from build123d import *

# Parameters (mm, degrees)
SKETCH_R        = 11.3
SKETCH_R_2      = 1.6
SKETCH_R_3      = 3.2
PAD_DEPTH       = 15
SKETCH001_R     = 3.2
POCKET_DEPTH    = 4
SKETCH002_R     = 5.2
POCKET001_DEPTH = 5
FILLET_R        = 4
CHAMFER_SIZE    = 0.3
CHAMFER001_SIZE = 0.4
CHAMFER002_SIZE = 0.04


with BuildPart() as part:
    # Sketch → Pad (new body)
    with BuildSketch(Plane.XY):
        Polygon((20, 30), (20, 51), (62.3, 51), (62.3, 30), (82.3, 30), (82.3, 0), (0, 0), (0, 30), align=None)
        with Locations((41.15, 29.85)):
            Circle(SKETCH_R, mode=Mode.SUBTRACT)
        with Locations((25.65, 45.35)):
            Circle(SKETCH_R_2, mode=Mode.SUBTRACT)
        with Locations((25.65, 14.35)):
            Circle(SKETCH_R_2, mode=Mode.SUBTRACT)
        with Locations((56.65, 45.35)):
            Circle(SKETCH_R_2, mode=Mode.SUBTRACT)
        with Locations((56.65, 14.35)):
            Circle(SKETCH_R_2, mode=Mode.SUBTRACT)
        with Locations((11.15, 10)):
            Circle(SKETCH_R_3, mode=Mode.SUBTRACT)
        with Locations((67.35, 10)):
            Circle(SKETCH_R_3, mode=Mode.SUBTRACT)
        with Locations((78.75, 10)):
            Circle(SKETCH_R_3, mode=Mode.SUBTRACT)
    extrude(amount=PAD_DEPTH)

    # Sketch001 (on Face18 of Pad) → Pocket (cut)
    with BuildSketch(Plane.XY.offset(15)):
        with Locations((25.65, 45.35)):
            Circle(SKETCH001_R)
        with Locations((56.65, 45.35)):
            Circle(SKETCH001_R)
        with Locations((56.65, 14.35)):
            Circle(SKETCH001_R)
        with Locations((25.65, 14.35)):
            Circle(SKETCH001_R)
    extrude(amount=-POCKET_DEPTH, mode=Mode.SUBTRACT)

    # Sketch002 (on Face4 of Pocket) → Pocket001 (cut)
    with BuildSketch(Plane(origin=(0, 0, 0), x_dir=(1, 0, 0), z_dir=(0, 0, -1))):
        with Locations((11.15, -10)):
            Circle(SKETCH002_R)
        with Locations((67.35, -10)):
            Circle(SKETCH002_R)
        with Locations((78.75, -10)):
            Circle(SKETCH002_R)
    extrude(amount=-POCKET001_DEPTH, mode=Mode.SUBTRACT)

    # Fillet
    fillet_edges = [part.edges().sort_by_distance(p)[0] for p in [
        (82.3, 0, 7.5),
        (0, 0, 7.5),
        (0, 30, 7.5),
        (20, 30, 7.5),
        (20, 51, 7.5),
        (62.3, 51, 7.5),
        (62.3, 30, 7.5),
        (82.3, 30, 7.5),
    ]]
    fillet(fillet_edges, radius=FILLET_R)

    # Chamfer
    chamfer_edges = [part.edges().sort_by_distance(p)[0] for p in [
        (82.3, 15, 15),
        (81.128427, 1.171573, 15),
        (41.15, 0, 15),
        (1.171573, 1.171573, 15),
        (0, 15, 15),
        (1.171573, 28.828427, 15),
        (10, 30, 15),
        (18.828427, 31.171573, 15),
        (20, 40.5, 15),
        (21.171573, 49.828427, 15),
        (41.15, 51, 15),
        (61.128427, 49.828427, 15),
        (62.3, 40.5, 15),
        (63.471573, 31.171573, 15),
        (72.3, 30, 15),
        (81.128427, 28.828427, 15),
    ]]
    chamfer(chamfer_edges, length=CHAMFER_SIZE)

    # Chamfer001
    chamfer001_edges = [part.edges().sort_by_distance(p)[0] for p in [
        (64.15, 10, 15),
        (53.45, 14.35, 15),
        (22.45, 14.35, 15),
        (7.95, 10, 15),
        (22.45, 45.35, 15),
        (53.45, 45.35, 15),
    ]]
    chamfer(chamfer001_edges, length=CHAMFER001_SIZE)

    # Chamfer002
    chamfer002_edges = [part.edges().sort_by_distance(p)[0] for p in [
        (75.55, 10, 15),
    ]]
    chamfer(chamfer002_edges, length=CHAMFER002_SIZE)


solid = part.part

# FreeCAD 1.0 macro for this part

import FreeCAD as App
import Part
import Sketcher

V = App.Vector
Q = App.Units.Quantity


def edges_at(feature, points):
    """Names of the edges that pass closest to the given points."""
    edges = feature.Shape.Edges
    near = lambda p: min(range(len(edges)), key=lambda i: edges[i].distToShape(Part.Vertex(*p))[0])
    return sorted({f"Edge{near(p) + 1}" for p in points})

doc = App.newDocument("Part")
body = doc.addObject("PartDesign::Body", "Body")

# Sketch on XY plane
sketch1 = body.newObject("Sketcher::SketchObject", "Sketch")
sketch1.AttachmentSupport = (doc.getObject("XY_Plane"), [""])
sketch1.MapMode = "FlatFace"
sketch1.addGeometry([
    Part.LineSegment(V(20, 51, 0), V(20, 30, 0)),  # 0
    Part.LineSegment(V(20, 30, 0), V(0, 30, 0)),  # 1
    Part.LineSegment(V(0, 30, 0), V(0, 0, 0)),  # 2
    Part.LineSegment(V(0, 0, 0), V(82.3, 0, 0)),  # 3
    Part.LineSegment(V(82.3, 0, 0), V(82.3, 30, 0)),  # 4
    Part.LineSegment(V(82.3, 30, 0), V(62.3, 30, 0)),  # 5
    Part.LineSegment(V(62.3, 30, 0), V(62.3, 51, 0)),  # 6
    Part.LineSegment(V(62.3, 51, 0), V(20, 51, 0)),  # 7
    Part.Circle(V(78.8, 10, 0), V(0, 0, 1), 3.2),  # 8
    Part.Circle(V(67.3, 10, 0), V(0, 0, 1), 3.2),  # 9
    Part.Circle(V(56.6, 14.3, 0), V(0, 0, 1), 1.6),  # 10
    Part.Circle(V(11.2, 10, 0), V(0, 0, 1), 3.2),  # 11
    Part.Circle(V(25.6, 14.3, 0), V(0, 0, 1), 1.6),  # 12
    Part.Circle(V(56.6, 45.4, 0), V(0, 0, 1), 1.6),  # 13
    Part.Circle(V(41.1, 29.9, 0), V(0, 0, 1), 11.3),  # 14
    Part.Circle(V(25.6, 45.4, 0), V(0, 0, 1), 1.6),  # 15
], False)
sketch1.addConstraint([
    Sketcher.Constraint("Coincident", 0, 2, 1, 1),
    Sketcher.Constraint("Coincident", 1, 2, 2, 1),
    Sketcher.Constraint("Coincident", 2, 2, 3, 1),
    Sketcher.Constraint("Coincident", 3, 2, 4, 1),
    Sketcher.Constraint("Coincident", 4, 2, 5, 1),
    Sketcher.Constraint("Coincident", 5, 2, 6, 1),
    Sketcher.Constraint("Coincident", 6, 2, 7, 1),
    Sketcher.Constraint("Coincident", 7, 2, 0, 1),
    Sketcher.Constraint("Vertical", 0),
    Sketcher.Constraint("Horizontal", 1),
    Sketcher.Constraint("Vertical", 2),
    Sketcher.Constraint("Horizontal", 3),
    Sketcher.Constraint("Vertical", 4),
    Sketcher.Constraint("Horizontal", 5),
    Sketcher.Constraint("Vertical", 6),
    Sketcher.Constraint("Horizontal", 7),
    Sketcher.Constraint("Coincident", 2, 2, -1, 1),
    Sketcher.Constraint("Equal", 8, 9),
    Sketcher.Constraint("Equal", 9, 11),
    Sketcher.Constraint("Equal", 10, 12),
    Sketcher.Constraint("Equal", 12, 13),
    Sketcher.Constraint("Equal", 13, 15),
    Sketcher.Constraint("Horizontal", 8, 3, 9, 3),
    Sketcher.Constraint("Horizontal", 9, 3, 11, 3),
    Sketcher.Constraint("Horizontal", 10, 3, 12, 3),
    Sketcher.Constraint("Horizontal", 13, 3, 15, 3),
    Sketcher.Constraint("Horizontal", 1, 2, 4, 2),
    Sketcher.Constraint("Vertical", 10, 3, 13, 3),
    Sketcher.Constraint("Vertical", 12, 3, 15, 3),
    Sketcher.Constraint("Equal", 1, 5),
    Sketcher.Constraint("Diameter", 8, Q("6.4 mm")),
    Sketcher.Constraint("Diameter", 10, Q("3.2 mm")),
    Sketcher.Constraint("Diameter", 14, Q("22.6 mm")),
    Sketcher.Constraint("DistanceX", 1, 2, 1, 1, Q("20 mm")),
    Sketcher.Constraint("DistanceY", 0, 2, 0, 1, Q("21 mm")),
    Sketcher.Constraint("DistanceY", 2, 2, 2, 1, Q("30 mm")),
    Sketcher.Constraint("DistanceX", 3, 1, 3, 2, Q("82.3 mm")),
    Sketcher.Constraint("DistanceY", -1, 1, 8, 3, Q("10 mm")),
    Sketcher.Constraint("DistanceX", 12, 3, 10, 3, Q("31 mm")),
    Sketcher.Constraint("DistanceY", 10, 3, 13, 3, Q("31 mm")),
    Sketcher.Constraint("DistanceX", 11, 3, 14, 3, Q("30 mm")),
    Sketcher.Constraint("DistanceX", 9, 3, 8, 3, Q("11.4 mm")),
    Sketcher.Constraint("DistanceX", 10, 3, 9, 3, Q("10.7 mm")),
    Sketcher.Constraint("DistanceX", 11, 3, 10, 3, Q("45.5 mm")),
    Sketcher.Constraint("DistanceY", 14, 3, 13, 3, Q("15.5 mm")),
    Sketcher.Constraint("DistanceX", -1, 1, 8, 3, Q("78.75 mm")),
    Sketcher.Constraint("DistanceY", -1, 1, 10, 3, Q("14.35 mm")),
])
pad1 = body.newObject("PartDesign::Pad", "Pad")
pad1.Profile = sketch1
pad1.Length = 15

# Sketch on XY plane
sketch2 = body.newObject("Sketcher::SketchObject", "Sketch001")
sketch2.AttachmentSupport = (doc.getObject("XY_Plane"), [""])
sketch2.MapMode = "FlatFace"
sketch2.AttachmentOffset = App.Placement(V(0, 0, 15), App.Rotation())
sketch2.addGeometry([
    Part.Circle(V(25.6, 45.4, 0), V(0, 0, 1), 3.2),
    Part.Circle(V(56.6, 45.4, 0), V(0, 0, 1), 3.2),
    Part.Circle(V(56.6, 14.3, 0), V(0, 0, 1), 3.2),
    Part.Circle(V(25.6, 14.3, 0), V(0, 0, 1), 3.2),
], False)
sketch2.addConstraint([
    Sketcher.Constraint("Equal", 0, 1),
    Sketcher.Constraint("Equal", 1, 2),
    Sketcher.Constraint("Equal", 2, 3),
    Sketcher.Constraint("Horizontal", 0, 3, 1, 3),
    Sketcher.Constraint("Horizontal", 2, 3, 3, 3),
    Sketcher.Constraint("Vertical", 1, 3, 2, 3),
    Sketcher.Constraint("Vertical", 0, 3, 3, 3),
    Sketcher.Constraint("Diameter", 0, Q("6.4 mm")),
    Sketcher.Constraint("DistanceX", 0, 3, 1, 3, Q("31 mm")),
    Sketcher.Constraint("DistanceY", 2, 3, 1, 3, Q("31 mm")),
    Sketcher.Constraint("DistanceX", -1, 1, 0, 3, Q("25.65 mm")),
    Sketcher.Constraint("DistanceY", -1, 1, 0, 3, Q("45.35 mm")),
])
pocket1 = body.newObject("PartDesign::Pocket", "Pocket")
pocket1.Profile = sketch2
pocket1.Length = 4

# Sketch on XY plane
sketch3 = body.newObject("Sketcher::SketchObject", "Sketch002")
sketch3.AttachmentSupport = (doc.getObject("XY_Plane"), [""])
sketch3.MapMode = "FlatFace"
sketch3.addGeometry([
    Part.Circle(V(11, 10, 0), V(0, 0, 1), 5),
    Part.Circle(V(67, 10, 0), V(0, 0, 1), 5),
    Part.Circle(V(79, 10, 0), V(0, 0, 1), 5),
], False)
sketch3.addConstraint([
    Sketcher.Constraint("Equal", 0, 1),
    Sketcher.Constraint("Equal", 1, 2),
    Sketcher.Constraint("Horizontal", 0, 3, 1, 3),
    Sketcher.Constraint("Horizontal", 1, 3, 2, 3),
    Sketcher.Constraint("Diameter", 0, Q("10.4 mm")),
    Sketcher.Constraint("DistanceY", -1, 1, 0, 3, Q("10 mm")),
    Sketcher.Constraint("DistanceX", 0, 3, 1, 3, Q("56.2 mm")),
    Sketcher.Constraint("DistanceX", 1, 3, 2, 3, Q("11.4 mm")),
    Sketcher.Constraint("DistanceX", -1, 1, 0, 3, Q("11.15 mm")),
])
pocket2 = body.newObject("PartDesign::Pocket", "Pocket001")
pocket2.Profile = sketch3
pocket2.Length = 5
pocket2.Reversed = True
doc.recompute()

fillet = body.newObject("PartDesign::Fillet", "Fillet")
fillet.Base = (pocket2, edges_at(pocket2, [
    (82.3, 0, 7.5),
    (0, 0, 7.5),
    (0, 30, 7.5),
    (20, 30, 7.5),
    (20, 51, 7.5),
    (62.3, 51, 7.5),
    (62.3, 30, 7.5),
    (82.3, 30, 7.5),
]))
fillet.Radius = 4
doc.recompute()

chamfer = body.newObject("PartDesign::Chamfer", "Chamfer")
chamfer.Base = (fillet, edges_at(fillet, [
    (82.3, 15, 15),
    (81.128, 1.172, 15),
    (41.15, 0, 15),
    (1.172, 1.172, 15),
    (0, 15, 15),
    (1.172, 28.828, 15),
    (10, 30, 15),
    (18.828, 31.172, 15),
    (20, 40.5, 15),
    (21.172, 49.828, 15),
    (41.15, 51, 15),
    (61.128, 49.828, 15),
    (62.3, 40.5, 15),
    (63.472, 31.172, 15),
    (72.3, 30, 15),
    (81.128, 28.828, 15),
]))
chamfer.Size = 0.3
doc.recompute()

chamfer2 = body.newObject("PartDesign::Chamfer", "Chamfer001")
chamfer2.Base = (chamfer, edges_at(chamfer, [
    (64.15, 10, 15),
    (53.45, 14.35, 15),
    (22.45, 14.35, 15),
    (7.95, 10, 15),
    (22.45, 45.35, 15),
    (53.45, 45.35, 15),
]))
chamfer2.Size = 0.4
doc.recompute()

chamfer3 = body.newObject("PartDesign::Chamfer", "Chamfer002")
chamfer3.Base = (chamfer2, edges_at(chamfer2, [(75.55, 10, 15)]))
chamfer3.Size = 0.04

doc.recompute()
